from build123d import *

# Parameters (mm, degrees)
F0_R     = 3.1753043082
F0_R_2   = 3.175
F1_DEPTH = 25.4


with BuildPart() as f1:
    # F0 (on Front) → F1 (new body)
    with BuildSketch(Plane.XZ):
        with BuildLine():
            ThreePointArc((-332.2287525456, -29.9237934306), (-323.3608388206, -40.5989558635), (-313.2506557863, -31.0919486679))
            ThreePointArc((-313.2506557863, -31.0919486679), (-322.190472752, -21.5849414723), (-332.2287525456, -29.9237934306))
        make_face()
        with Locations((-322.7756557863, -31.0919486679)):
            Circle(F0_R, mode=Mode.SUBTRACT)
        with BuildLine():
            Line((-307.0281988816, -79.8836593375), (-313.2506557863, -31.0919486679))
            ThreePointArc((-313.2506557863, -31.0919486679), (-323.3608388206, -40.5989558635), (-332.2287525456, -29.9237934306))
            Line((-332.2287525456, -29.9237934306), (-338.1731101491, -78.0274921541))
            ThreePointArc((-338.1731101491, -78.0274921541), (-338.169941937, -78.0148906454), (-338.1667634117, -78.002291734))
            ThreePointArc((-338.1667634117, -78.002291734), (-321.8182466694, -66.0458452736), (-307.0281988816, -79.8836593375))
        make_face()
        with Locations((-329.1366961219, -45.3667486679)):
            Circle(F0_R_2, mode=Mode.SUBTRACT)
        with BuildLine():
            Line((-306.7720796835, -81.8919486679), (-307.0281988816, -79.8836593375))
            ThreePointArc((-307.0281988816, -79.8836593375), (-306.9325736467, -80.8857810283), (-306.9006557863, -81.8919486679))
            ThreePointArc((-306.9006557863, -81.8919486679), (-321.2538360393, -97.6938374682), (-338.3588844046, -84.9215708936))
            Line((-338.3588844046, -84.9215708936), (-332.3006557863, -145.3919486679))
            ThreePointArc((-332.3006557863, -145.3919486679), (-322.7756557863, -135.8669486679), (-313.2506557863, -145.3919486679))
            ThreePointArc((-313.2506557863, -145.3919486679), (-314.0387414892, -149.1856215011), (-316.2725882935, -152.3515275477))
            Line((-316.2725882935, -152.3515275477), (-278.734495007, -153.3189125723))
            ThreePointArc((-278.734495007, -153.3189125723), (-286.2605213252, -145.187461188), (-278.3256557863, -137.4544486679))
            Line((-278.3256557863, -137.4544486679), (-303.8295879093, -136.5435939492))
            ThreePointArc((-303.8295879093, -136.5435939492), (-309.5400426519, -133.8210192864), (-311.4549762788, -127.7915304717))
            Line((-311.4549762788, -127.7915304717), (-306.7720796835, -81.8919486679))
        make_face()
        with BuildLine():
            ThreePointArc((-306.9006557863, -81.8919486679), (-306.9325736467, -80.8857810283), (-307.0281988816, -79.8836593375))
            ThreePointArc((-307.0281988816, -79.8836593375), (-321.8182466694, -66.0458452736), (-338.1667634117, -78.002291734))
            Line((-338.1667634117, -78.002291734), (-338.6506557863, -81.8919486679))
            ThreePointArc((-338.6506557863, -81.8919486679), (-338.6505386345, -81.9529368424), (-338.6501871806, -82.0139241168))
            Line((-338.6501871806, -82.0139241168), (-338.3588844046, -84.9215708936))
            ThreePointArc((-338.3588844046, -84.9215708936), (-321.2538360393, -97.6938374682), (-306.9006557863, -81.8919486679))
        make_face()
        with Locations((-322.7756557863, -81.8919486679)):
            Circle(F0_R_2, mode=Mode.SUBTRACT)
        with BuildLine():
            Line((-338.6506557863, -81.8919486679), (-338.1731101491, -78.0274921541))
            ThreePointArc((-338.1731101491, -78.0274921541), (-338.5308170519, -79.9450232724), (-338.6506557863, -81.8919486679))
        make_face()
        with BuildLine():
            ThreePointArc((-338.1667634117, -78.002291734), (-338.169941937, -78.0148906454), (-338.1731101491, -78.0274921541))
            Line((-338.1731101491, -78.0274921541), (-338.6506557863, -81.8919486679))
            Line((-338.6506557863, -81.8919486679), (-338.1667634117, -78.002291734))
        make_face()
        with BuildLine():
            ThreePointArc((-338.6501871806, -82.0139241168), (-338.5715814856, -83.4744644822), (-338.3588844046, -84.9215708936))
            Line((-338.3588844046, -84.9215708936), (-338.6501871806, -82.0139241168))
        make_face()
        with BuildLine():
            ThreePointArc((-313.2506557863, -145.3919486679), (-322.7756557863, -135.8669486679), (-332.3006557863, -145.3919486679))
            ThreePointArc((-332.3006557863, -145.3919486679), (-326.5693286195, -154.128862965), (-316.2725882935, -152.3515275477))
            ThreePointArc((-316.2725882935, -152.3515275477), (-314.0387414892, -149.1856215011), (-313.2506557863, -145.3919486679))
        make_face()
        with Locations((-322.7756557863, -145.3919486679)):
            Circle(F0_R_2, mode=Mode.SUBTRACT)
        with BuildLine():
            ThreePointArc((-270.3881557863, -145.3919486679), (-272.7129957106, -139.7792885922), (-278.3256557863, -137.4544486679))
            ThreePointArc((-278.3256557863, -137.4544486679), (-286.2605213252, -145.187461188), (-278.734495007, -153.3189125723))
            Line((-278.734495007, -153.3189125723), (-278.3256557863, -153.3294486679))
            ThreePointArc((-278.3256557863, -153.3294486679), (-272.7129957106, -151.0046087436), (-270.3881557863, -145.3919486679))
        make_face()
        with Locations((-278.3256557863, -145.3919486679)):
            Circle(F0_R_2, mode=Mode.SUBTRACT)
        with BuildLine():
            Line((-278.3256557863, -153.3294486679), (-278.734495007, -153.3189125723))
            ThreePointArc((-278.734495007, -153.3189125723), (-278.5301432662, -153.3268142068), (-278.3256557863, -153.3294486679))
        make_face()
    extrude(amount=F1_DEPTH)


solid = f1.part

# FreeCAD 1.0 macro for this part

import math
import FreeCAD as App
import Part
import Sketcher
from FreeCAD import Vector
Q = App.Units.Quantity

doc = App.newDocument("Part")
body = doc.addObject("PartDesign::Body", "Body")

# Sketch on XZ plane
sketch1 = body.newObject("Sketcher::SketchObject", "Sketch")
sketch1.AttachmentSupport = (doc.getObject("XZ_Plane"), [""])
sketch1.MapMode = "FlatFace"
sketch1.addGeometry(Part.ArcOfCircle(Part.Circle(Vector(-322.775656, -31.091949, 0), Vector(0, 0, 1), 9.525), math.radians(0), math.radians(172.955455)), False)
sketch1.addGeometry(Part.LineSegment(Vector(-332.228753, -29.923793, 0), Vector(-338.17311, -78.027492, 0)), False)
sketch1.addGeometry(Part.ArcOfCircle(Part.Circle(Vector(-322.775656, -81.891949, 0), Vector(0, 0, 1), 15.875), math.radians(165.91091), math.radians(180)), False)
sketch1.addGeometry(Part.ArcOfCircle(Part.Circle(Vector(-322.775665, -81.891949, 0), Vector(0, 0, 1), 15.874991), math.radians(180), math.radians(180.440236)), False)
sketch1.addGeometry(Part.ArcOfCircle(Part.Circle(Vector(-322.775656, -81.891949, 0), Vector(0, 0, 1), 15.875), math.radians(-179.559764), math.radians(-168.998053)), False)
sketch1.addGeometry(Part.LineSegment(Vector(-338.358884, -84.921571, 0), Vector(-332.300656, -145.391949, 0)), False)
sketch1.addGeometry(Part.ArcOfCircle(Part.Circle(Vector(-322.775656, -145.391949, 0), Vector(0, 0, 1), 9.525), math.radians(180), math.radians(313.057874)), False)
sketch1.addGeometry(Part.LineSegment(Vector(-316.272588, -152.351528, 0), Vector(-278.734495, -153.318913, 0)), False)
sketch1.addGeometry(Part.ArcOfCircle(Part.Circle(Vector(-278.325656, -145.391949, 0), Vector(0, 0, 1), 7.9375), math.radians(-92.952458), math.radians(-90)), False)
sketch1.addGeometry(Part.ArcOfCircle(Part.Circle(Vector(-278.325656, -145.391949, 0), Vector(0, 0, 1), 7.9375), math.radians(-90), math.radians(0)), False)
sketch1.addGeometry(Part.ArcOfCircle(Part.Circle(Vector(-278.325656, -145.391949, 0), Vector(0, 0, 1), 7.9375), math.radians(0), math.radians(90)), False)
sketch1.addGeometry(Part.LineSegment(Vector(-278.325656, -137.454449, 0), Vector(-303.829588, -136.543594, 0)), False)
sketch1.addGeometry(Part.ArcOfCircle(Part.Circle(Vector(-303.545833, -128.598459, 0), Vector(0, 0, 1), 7.9502), math.radians(174.174565), math.radians(267.954592)), False)
sketch1.addGeometry(Part.LineSegment(Vector(-311.454976, -127.79153, 0), Vector(-306.77208, -81.891949, 0)), False)
sketch1.addGeometry(Part.LineSegment(Vector(-306.77208, -81.891949, 0), Vector(-313.250656, -31.091949, 0)), False)
sketch1.addGeometry(Part.Circle(Vector(-322.775656, -145.391949, 0), Vector(0, 0, 1), 3.175), False)
sketch1.addGeometry(Part.Circle(Vector(-278.325656, -145.391949, 0), Vector(0, 0, 1), 3.175), False)
sketch1.addGeometry(Part.Circle(Vector(-322.775656, -81.891949, 0), Vector(0, 0, 1), 3.175), False)
sketch1.addGeometry(Part.Circle(Vector(-329.136696, -45.366749, 0), Vector(0, 0, 1), 3.175), False)
sketch1.addGeometry(Part.Circle(Vector(-322.775656, -31.091949, 0), Vector(0, 0, 1), 3.175304), False)
sketch1.addConstraint(Sketcher.Constraint("Tangent", 0, 2, 1, 1))
sketch1.addConstraint(Sketcher.Constraint("Coincident", 1, 2, 2, 1))
sketch1.addConstraint(Sketcher.Constraint("Tangent", 2, 2, 3, 1))
sketch1.addConstraint(Sketcher.Constraint("Tangent", 3, 2, 4, 1))
sketch1.addConstraint(Sketcher.Constraint("Coincident", 4, 2, 5, 1))
sketch1.addConstraint(Sketcher.Constraint("Coincident", 5, 2, 6, 1))
sketch1.addConstraint(Sketcher.Constraint("Coincident", 6, 2, 7, 1))
sketch1.addConstraint(Sketcher.Constraint("Coincident", 7, 2, 8, 1))
sketch1.addConstraint(Sketcher.Constraint("Tangent", 8, 2, 9, 1))
sketch1.addConstraint(Sketcher.Constraint("Tangent", 9, 2, 10, 1))
sketch1.addConstraint(Sketcher.Constraint("Coincident", 10, 2, 11, 1))
sketch1.addConstraint(Sketcher.Constraint("Tangent", 11, 2, 12, 2))
sketch1.addConstraint(Sketcher.Constraint("Tangent", 12, 1, 13, 1))
sketch1.addConstraint(Sketcher.Constraint("Coincident", 13, 2, 14, 1))
sketch1.addConstraint(Sketcher.Constraint("Coincident", 14, 2, 0, 1))
sketch1.addConstraint(Sketcher.Constraint("Coincident", 4, 3, 2, 3))
sketch1.addConstraint(Sketcher.Constraint("Coincident", 10, 3, 8, 3))
sketch1.addConstraint(Sketcher.Constraint("Coincident", 15, 3, 6, 3))
sketch1.addConstraint(Sketcher.Constraint("Coincident", 16, 3, 8, 3))
sketch1.addConstraint(Sketcher.Constraint("Coincident", 17, 3, 2, 3))
sketch1.addConstraint(Sketcher.Constraint("Coincident", 19, 3, 0, 3))
sketch1.addConstraint(Sketcher.Constraint("Equal", 0, 6))
sketch1.addConstraint(Sketcher.Constraint("Equal", 15, 16))
sketch1.addConstraint(Sketcher.Constraint("Equal", 16, 17))
sketch1.addConstraint(Sketcher.Constraint("Equal", 17, 18))
sketch1.addConstraint(Sketcher.Constraint("Horizontal", 6, 3, 8, 3))
sketch1.addConstraint(Sketcher.Constraint("Horizontal", 17, 3, 2, 2))
sketch1.addConstraint(Sketcher.Constraint("Horizontal", 16, 3, 5, 2))
sketch1.addConstraint(Sketcher.Constraint("Horizontal", 5, 2, 9, 2))
sketch1.addConstraint(Sketcher.Constraint("Horizontal", 2, 2, 13, 2))
sketch1.addConstraint(Sketcher.Constraint("Horizontal", 19, 3, 14, 2))
sketch1.addConstraint(Sketcher.Constraint("Vertical", 0, 3, 2, 3))
sketch1.addConstraint(Sketcher.Constraint("Vertical", 4, 3, 6, 3))
sketch1.addConstraint(Sketcher.Constraint("Vertical", 16, 3, 8, 2))
sketch1.addConstraint(Sketcher.Constraint("Vertical", 8, 2, 10, 2))
sketch1.addConstraint(Sketcher.Constraint("Diameter", 15, Q("0.25 in")))
sketch1.addConstraint(Sketcher.Constraint("Radius", 0, Q("0.375 in")))
sketch1.addConstraint(Sketcher.Constraint("Radius", 2, Q("0.625 in")))
sketch1.addConstraint(Sketcher.Constraint("Radius", 8, Q("0.3125 in")))
sketch1.addConstraint(Sketcher.Constraint("Radius", 12, Q("0.313 in")))
sketch1.addConstraint(Sketcher.Constraint("DistanceY", 2, 3, 0, 3, Q("2 in")))
sketch1.addConstraint(Sketcher.Constraint("DistanceY", 6, 3, 3, 3, Q("2.5 in")))
sketch1.addConstraint(Sketcher.Constraint("DistanceX", 6, 3, 8, 3, Q("1.75 in")))
sketch1.addConstraint(Sketcher.Constraint("Diameter", 19, 6.350609))
sketch1.addConstraint(Sketcher.Constraint("DistanceY", 18, 3, 0, 3, Q("0.562 in")))
sketch1.addConstraint(Sketcher.Constraint("DistanceX", 6, 2, 11, 2, 12.443))
sketch1.addConstraint(Sketcher.Constraint("Distance", 1, 48.469591))
sketch1.addConstraint(Sketcher.Constraint("Distance", 13, 46.137849))
sketch1.addConstraint(Sketcher.Constraint("DistanceY", 0, 3, -1, 1, 31.091949))
sketch1.addConstraint(Sketcher.Constraint("DistanceY", 12, 3, -1, 1, 128.598459))
sketch1.addConstraint(Sketcher.Constraint("DistanceX", 1, 2, -1, 1, 338.17311))
sketch1.addConstraint(Sketcher.Constraint("DistanceY", 4, 2, -1, 1, 84.921571))
sketch1.addConstraint(Sketcher.Constraint("DistanceX", 6, 2, -1, 1, 316.272588))
sketch1.addConstraint(Sketcher.Constraint("DistanceX", 18, 3, 0, 3, 6.36104))
sketch1.addConstraint(Sketcher.Constraint("DistanceX", 2, 2, 3, 2, 0.000469))
sketch1.addConstraint(Sketcher.Constraint("DistanceX", 7, 2, 9, 3, 0.408839))
pad1 = body.newObject("PartDesign::Pad", "Pad")
pad1.Profile = sketch1
pad1.Length = Q("1 in")

doc.recompute()
